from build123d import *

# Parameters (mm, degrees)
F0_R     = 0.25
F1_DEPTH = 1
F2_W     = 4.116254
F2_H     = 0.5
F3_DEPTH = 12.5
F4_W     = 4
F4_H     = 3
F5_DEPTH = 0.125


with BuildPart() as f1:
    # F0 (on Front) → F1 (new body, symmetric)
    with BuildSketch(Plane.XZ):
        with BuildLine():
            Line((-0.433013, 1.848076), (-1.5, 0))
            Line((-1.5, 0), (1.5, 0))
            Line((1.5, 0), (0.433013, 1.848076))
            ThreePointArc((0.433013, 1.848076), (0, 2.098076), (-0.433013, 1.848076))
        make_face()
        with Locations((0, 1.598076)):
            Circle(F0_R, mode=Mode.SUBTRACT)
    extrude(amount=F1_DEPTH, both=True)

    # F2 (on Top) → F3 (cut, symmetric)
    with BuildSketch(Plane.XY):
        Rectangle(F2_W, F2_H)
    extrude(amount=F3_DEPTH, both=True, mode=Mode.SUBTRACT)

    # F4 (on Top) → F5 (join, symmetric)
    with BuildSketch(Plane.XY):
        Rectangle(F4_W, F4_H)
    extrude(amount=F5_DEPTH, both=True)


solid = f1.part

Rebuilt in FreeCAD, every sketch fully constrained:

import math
import FreeCAD as App
import Part
import Sketcher
Q = App.Units.Quantity

doc = App.newDocument("Part")
body = doc.addObject("PartDesign::Body", "Body")
body.AllowCompound = True

# Sketch on XZ plane
sketch1 = body.newObject("Sketcher::SketchObject", "Sketch")
sketch1.AttachmentSupport = (doc.getObject("XZ_Plane"), [""])
sketch1.MapMode = "FlatFace"
sketch1.addGeometry([
    Part.LineSegment(App.Vector(-0.43, 1.85, 0), App.Vector(-1.5, 0, 0)),  # 0
    Part.LineSegment(App.Vector(-1.5, 0, 0), App.Vector(1.5, 0, 0)),  # 1
    Part.LineSegment(App.Vector(1.5, 0, 0), App.Vector(0.43, 1.85, 0)),  # 2
    Part.ArcOfCircle(Part.Circle(App.Vector(0, 1.6, 0), App.Vector(0, 0, 1), 0.5), math.radians(30), math.radians(150)),  # 3
    Part.Circle(App.Vector(0, 1.6, 0), App.Vector(0, 0, 1), 0.25),  # 4
], False)
sketch1.addConstraint([
    Sketcher.Constraint("Coincident", 0, 2, 1, 1),
    Sketcher.Constraint("Coincident", 1, 2, 2, 1),
    Sketcher.Constraint("Tangent", 2, 2, 3, 1),
    Sketcher.Constraint("Tangent", 3, 2, 0, 1),
    Sketcher.Constraint("Horizontal", 1),
    Sketcher.Constraint("Coincident", 4, 3, 3, 3),
    Sketcher.Constraint("Symmetric", 0, 2, 1, 2, -1, 1),
    Sketcher.Constraint("PointOnObject", 3, 3, -2),
    Sketcher.Constraint("Diameter", 4, 0.5),
    Sketcher.Constraint("Radius", 3, 0.500001),
    Sketcher.Constraint("DistanceX", 1, 1, 1, 2, 3.0),
    Sketcher.Constraint("Angle", 0, Q("-119.999996 deg")),
])
pad1 = body.newObject("PartDesign::Pad", "Pad")
pad1.Profile = sketch1
pad1.Length = 2
pad1.Midplane = True

# Sketch on XY plane
sketch2 = body.newObject("Sketcher::SketchObject", "Sketch001")
sketch2.AttachmentSupport = (doc.getObject("XY_Plane"), [""])
sketch2.MapMode = "FlatFace"
sketch2.addGeometry([
    Part.LineSegment(App.Vector(-2.1, 0.2, 0), App.Vector(-2.1, -0.2, 0)),
    Part.LineSegment(App.Vector(-2.1, -0.2, 0), App.Vector(2.1, -0.2, 0)),
    Part.LineSegment(App.Vector(2.1, -0.2, 0), App.Vector(2.1, 0.2, 0)),
    Part.LineSegment(App.Vector(2.1, 0.2, 0), App.Vector(-2.1, 0.2, 0)),
], False)
sketch2.addConstraint([
    Sketcher.Constraint("Coincident", 0, 2, 1, 1),
    Sketcher.Constraint("Coincident", 1, 2, 2, 1),
    Sketcher.Constraint("Coincident", 2, 2, 3, 1),
    Sketcher.Constraint("Coincident", 3, 2, 0, 1),
    Sketcher.Constraint("Vertical", 0),
    Sketcher.Constraint("Horizontal", 1),
    Sketcher.Constraint("Vertical", 2),
    Sketcher.Constraint("Horizontal", 3),
    Sketcher.Constraint("Symmetric", 0, 2, 2, 2, -1, 1),
    Sketcher.Constraint("DistanceY", 0, 2, 0, 1, 0.5),
    Sketcher.Constraint("DistanceX", 1, 1, 1, 2, 4.116254),
])
pocket1 = body.newObject("PartDesign::Pocket", "Pocket")
pocket1.Profile = sketch2
pocket1.Length = 25
pocket1.Midplane = True

# Sketch on XY plane
sketch3 = body.newObject("Sketcher::SketchObject", "Sketch002")
sketch3.AttachmentSupport = (doc.getObject("XY_Plane"), [""])
sketch3.MapMode = "FlatFace"
sketch3.addGeometry([
    Part.LineSegment(App.Vector(-2, 1.5, 0), App.Vector(-2, -1.5, 0)),
    Part.LineSegment(App.Vector(-2, -1.5, 0), App.Vector(2, -1.5, 0)),
    Part.LineSegment(App.Vector(2, -1.5, 0), App.Vector(2, 1.5, 0)),
    Part.LineSegment(App.Vector(2, 1.5, 0), App.Vector(-2, 1.5, 0)),
], False)
sketch3.addConstraint([
    Sketcher.Constraint("Coincident", 0, 2, 1, 1),
    Sketcher.Constraint("Coincident", 1, 2, 2, 1),
    Sketcher.Constraint("Coincident", 2, 2, 3, 1),
    Sketcher.Constraint("Coincident", 3, 2, 0, 1),
    Sketcher.Constraint("Vertical", 0),
    Sketcher.Constraint("Horizontal", 1),
    Sketcher.Constraint("Vertical", 2),
    Sketcher.Constraint("Horizontal", 3),
    Sketcher.Constraint("Symmetric", 0, 2, 2, 2, -1, 1),
    Sketcher.Constraint("DistanceX", 1, 1, 1, 2, 4.0),
    Sketcher.Constraint("DistanceY", 0, 2, 0, 1, 3.0),
])
pad2 = body.newObject("PartDesign::Pad", "Pad001")
pad2.Profile = sketch3
pad2.Length = 0.25
pad2.Midplane = True

doc.recompute()
